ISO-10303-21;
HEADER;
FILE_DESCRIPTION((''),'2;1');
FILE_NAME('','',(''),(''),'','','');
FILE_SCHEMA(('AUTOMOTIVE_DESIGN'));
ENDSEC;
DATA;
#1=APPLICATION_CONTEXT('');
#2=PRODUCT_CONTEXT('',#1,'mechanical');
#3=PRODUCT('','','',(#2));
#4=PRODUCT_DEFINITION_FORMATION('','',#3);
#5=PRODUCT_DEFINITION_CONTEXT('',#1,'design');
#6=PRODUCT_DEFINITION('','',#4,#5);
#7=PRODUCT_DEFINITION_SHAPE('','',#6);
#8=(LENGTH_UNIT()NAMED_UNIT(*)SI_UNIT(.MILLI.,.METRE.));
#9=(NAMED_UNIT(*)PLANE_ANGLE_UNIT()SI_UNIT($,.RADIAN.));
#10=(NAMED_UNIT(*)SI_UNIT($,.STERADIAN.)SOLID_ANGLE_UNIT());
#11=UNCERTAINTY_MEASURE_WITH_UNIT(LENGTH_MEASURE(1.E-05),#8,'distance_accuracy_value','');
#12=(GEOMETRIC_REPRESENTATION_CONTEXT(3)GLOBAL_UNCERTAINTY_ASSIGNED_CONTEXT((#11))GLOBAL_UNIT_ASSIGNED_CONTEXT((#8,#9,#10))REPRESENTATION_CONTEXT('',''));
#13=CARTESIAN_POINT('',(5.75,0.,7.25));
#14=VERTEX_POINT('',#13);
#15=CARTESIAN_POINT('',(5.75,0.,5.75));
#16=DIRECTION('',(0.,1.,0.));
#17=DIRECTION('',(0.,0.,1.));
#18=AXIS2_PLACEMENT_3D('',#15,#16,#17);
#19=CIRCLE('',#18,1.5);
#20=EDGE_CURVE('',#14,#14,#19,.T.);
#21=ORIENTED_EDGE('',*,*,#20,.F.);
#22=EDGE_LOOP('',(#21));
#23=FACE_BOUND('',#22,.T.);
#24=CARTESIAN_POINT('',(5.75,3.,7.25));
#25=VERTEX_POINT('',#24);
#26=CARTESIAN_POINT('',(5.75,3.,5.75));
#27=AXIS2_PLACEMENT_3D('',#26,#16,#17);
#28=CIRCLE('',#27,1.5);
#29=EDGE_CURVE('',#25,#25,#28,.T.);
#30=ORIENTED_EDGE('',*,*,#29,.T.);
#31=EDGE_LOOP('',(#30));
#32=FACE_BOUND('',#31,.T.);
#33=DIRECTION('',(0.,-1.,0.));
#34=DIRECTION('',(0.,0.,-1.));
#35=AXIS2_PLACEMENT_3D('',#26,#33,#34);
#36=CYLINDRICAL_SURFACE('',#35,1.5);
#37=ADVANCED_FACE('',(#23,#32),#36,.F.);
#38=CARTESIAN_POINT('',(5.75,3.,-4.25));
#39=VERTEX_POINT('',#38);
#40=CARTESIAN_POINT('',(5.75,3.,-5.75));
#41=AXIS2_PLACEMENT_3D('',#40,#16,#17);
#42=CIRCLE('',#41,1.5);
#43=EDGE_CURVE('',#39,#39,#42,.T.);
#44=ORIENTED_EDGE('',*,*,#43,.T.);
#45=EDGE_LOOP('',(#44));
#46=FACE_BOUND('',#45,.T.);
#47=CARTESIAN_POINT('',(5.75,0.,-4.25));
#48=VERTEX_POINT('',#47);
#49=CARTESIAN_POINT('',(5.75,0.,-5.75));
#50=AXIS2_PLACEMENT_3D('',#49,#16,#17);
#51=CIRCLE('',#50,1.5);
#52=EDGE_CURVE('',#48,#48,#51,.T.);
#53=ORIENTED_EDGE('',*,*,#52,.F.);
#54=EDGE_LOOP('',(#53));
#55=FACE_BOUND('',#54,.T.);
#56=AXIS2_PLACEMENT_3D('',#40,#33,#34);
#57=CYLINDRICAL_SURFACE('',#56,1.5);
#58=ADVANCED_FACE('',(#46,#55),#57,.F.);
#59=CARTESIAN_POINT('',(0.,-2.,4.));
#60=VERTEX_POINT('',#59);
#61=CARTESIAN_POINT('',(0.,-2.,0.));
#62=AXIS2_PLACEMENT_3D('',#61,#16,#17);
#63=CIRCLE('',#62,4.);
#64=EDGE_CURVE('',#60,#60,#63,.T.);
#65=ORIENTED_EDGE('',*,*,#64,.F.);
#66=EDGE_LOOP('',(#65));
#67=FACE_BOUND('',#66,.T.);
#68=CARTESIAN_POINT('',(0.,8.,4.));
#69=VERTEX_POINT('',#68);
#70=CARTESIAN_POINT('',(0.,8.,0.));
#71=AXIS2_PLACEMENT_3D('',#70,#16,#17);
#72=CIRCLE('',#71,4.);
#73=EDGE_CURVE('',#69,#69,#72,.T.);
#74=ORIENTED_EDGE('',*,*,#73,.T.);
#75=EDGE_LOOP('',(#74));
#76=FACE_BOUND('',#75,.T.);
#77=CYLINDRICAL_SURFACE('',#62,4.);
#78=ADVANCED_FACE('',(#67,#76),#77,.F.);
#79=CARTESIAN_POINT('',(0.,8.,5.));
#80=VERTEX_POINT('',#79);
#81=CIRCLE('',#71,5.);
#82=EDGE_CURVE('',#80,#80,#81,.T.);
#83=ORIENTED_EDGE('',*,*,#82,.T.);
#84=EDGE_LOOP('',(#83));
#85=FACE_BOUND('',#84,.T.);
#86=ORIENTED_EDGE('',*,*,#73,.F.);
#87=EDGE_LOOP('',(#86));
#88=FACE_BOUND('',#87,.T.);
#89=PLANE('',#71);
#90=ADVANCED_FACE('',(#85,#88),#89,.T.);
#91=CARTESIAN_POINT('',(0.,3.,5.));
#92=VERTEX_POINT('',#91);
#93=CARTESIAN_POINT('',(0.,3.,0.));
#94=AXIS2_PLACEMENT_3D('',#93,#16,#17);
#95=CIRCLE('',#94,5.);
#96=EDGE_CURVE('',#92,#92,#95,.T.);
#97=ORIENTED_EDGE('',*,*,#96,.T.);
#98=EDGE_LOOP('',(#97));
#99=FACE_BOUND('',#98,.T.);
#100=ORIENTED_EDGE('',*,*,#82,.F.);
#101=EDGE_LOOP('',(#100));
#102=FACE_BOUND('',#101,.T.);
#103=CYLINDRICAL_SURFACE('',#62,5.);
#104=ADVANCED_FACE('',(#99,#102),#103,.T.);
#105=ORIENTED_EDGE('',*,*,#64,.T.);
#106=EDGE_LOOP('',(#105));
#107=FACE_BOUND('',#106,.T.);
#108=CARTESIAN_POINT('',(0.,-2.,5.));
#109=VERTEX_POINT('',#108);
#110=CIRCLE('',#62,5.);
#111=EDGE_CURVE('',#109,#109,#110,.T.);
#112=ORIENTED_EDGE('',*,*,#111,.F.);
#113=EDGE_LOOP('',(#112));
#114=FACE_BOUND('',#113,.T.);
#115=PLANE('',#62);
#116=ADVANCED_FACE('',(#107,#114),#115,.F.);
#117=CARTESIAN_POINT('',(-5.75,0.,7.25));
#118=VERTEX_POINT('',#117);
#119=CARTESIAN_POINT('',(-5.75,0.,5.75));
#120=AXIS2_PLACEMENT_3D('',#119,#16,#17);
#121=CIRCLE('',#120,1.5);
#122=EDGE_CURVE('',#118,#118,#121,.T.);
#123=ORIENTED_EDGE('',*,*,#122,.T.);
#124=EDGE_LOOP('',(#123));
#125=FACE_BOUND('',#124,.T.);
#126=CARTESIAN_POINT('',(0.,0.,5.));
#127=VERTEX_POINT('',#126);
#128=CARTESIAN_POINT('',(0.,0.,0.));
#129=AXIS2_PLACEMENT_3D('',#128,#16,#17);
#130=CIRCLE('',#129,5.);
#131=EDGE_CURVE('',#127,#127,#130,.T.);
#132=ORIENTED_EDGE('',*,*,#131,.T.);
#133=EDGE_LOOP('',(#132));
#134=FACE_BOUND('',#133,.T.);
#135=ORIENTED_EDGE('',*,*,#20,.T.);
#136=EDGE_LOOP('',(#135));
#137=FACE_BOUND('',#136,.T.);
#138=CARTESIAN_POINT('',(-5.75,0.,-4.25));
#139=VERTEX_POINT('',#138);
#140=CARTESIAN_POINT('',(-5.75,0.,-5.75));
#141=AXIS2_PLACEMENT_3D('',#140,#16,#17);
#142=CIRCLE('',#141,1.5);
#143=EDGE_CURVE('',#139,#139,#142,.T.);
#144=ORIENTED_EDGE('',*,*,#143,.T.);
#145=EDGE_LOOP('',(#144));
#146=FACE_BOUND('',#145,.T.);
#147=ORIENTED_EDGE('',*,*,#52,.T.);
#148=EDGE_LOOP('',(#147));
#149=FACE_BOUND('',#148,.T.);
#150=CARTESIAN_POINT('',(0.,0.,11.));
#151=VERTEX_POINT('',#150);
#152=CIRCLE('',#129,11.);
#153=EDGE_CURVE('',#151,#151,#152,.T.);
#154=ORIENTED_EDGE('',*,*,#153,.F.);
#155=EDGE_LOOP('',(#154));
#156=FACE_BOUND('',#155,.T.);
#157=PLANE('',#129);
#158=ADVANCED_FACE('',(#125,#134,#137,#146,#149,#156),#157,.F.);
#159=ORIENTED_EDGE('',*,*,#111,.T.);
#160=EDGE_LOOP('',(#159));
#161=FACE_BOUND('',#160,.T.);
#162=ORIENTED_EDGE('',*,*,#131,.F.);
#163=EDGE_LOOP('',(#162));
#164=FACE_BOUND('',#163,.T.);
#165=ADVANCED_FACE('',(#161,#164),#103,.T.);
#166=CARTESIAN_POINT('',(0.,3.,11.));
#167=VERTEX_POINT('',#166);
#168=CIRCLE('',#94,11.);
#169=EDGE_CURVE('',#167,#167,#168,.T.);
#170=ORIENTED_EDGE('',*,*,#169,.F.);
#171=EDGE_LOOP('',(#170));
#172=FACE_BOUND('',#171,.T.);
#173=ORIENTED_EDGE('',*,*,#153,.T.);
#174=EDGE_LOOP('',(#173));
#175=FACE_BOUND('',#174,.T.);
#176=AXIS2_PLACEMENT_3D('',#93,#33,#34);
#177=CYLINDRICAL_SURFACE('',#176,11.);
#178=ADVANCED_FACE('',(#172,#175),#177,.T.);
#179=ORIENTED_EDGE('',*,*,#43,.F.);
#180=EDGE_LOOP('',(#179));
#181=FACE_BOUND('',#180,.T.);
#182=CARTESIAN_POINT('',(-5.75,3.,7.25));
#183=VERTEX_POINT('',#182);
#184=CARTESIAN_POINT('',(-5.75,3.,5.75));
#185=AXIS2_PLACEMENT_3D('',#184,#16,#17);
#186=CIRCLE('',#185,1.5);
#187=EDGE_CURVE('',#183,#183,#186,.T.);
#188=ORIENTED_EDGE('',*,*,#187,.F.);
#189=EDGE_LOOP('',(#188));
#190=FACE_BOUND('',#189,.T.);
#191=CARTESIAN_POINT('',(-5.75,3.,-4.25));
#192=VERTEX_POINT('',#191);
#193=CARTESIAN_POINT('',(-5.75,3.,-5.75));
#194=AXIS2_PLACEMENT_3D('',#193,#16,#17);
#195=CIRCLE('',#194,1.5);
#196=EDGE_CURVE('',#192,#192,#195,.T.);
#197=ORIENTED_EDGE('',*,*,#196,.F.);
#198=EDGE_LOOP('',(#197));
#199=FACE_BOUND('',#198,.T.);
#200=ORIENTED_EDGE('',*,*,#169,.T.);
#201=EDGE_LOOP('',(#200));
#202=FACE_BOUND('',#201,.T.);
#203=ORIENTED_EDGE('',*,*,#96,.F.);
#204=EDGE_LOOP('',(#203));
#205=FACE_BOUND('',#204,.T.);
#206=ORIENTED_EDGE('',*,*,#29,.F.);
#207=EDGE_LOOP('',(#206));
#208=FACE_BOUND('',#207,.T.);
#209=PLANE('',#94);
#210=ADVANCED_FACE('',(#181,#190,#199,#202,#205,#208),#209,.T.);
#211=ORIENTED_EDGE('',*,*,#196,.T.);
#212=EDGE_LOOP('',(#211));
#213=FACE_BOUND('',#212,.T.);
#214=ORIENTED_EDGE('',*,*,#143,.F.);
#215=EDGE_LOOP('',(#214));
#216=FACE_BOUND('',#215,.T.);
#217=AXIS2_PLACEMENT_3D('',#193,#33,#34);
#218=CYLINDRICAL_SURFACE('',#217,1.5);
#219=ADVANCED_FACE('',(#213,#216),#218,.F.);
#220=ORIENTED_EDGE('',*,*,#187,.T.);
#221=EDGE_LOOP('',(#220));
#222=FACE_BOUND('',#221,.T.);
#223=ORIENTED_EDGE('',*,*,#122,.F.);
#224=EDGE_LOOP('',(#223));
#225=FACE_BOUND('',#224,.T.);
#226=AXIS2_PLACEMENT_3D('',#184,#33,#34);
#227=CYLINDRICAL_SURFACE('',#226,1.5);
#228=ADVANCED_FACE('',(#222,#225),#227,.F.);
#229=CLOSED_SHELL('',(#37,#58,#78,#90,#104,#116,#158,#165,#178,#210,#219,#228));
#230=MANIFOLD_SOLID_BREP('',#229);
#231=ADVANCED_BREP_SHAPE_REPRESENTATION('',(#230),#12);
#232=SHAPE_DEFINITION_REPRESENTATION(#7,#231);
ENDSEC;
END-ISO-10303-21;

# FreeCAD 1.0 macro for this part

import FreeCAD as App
import Part
import Sketcher
from FreeCAD import Vector

doc = App.newDocument("Part")
body = doc.addObject("PartDesign::Body", "Body")

# Sketch on XZ plane
sketch1 = body.newObject("Sketcher::SketchObject", "Sketch")
sketch1.AttachmentSupport = (doc.getObject("XZ_Plane"), [""])
sketch1.MapMode = "FlatFace"
sketch1.addGeometry(Part.Circle(Vector(0, 0, 0), Vector(0, 0, 1), 11), False)
sketch1.addGeometry(Part.Circle(Vector(-5.8, 5.8, 0), Vector(0, 0, 1), 1.5), False)
sketch1.addGeometry(Part.Circle(Vector(5.8, 5.8, 0), Vector(0, 0, 1), 1.5), False)
sketch1.addGeometry(Part.Circle(Vector(-5.8, -5.8, 0), Vector(0, 0, 1), 1.5), False)
sketch1.addGeometry(Part.Circle(Vector(0, 0, 0), Vector(0, 0, 1), 5), False)
sketch1.addGeometry(Part.Circle(Vector(5.8, -5.8, 0), Vector(0, 0, 1), 1.5), False)
sketch1.addConstraint(Sketcher.Constraint("Coincident", 0, 3, -1, 1))
sketch1.addConstraint(Sketcher.Constraint("Coincident", 4, 3, -1, 1))
sketch1.addConstraint(Sketcher.Constraint("Equal", 1, 2))
sketch1.addConstraint(Sketcher.Constraint("Equal", 2, 3))
sketch1.addConstraint(Sketcher.Constraint("Equal", 3, 5))
sketch1.addConstraint(Sketcher.Constraint("Symmetric", 2, 3, 3, 3, -1, 1))
sketch1.addConstraint(Sketcher.Constraint("Symmetric", 1, 3, 5, 3, -1, 1))
sketch1.addConstraint(Sketcher.Constraint("Symmetric", 1, 3, 2, 3, -2))
sketch1.addConstraint(Sketcher.Constraint("Diameter", 0, 22.0))
sketch1.addConstraint(Sketcher.Constraint("Diameter", 1, 3.0))
sketch1.addConstraint(Sketcher.Constraint("Diameter", 4, 10.0))
sketch1.addConstraint(Sketcher.Constraint("DistanceX", 1, 3, 2, 3, 11.5))
sketch1.addConstraint(Sketcher.Constraint("DistanceY", 3, 3, 1, 3, 11.5))
pad1 = body.newObject("PartDesign::Pad", "Pad")
pad1.Profile = sketch1
pad1.Length = 3
pad1.Reversed = True

# Sketch on XZ plane
sketch2 = body.newObject("Sketcher::SketchObject", "Sketch001")
sketch2.AttachmentSupport = (doc.getObject("XZ_Plane"), [""])
sketch2.MapMode = "FlatFace"
sketch2.addGeometry(Part.Circle(Vector(0, 0, 0), Vector(0, 0, 1), 5), False)
sketch2.addGeometry(Part.Circle(Vector(0, 0, 0), Vector(0, 0, 1), 4), False)
sketch2.addConstraint(Sketcher.Constraint("Coincident", 0, 3, -1, 1))
sketch2.addConstraint(Sketcher.Constraint("Coincident", 1, 3, -1, 1))
sketch2.addConstraint(Sketcher.Constraint("Diameter", 0, 10.0))
sketch2.addConstraint(Sketcher.Constraint("Diameter", 1, 8.0))
pad2 = body.newObject("PartDesign::Pad", "Pad001")
pad2.Profile = sketch2
pad2.Type = "TwoLengths"
pad2.Length = 8
pad2.Length2 = 2
pad2.Reversed = True

doc.recompute()
